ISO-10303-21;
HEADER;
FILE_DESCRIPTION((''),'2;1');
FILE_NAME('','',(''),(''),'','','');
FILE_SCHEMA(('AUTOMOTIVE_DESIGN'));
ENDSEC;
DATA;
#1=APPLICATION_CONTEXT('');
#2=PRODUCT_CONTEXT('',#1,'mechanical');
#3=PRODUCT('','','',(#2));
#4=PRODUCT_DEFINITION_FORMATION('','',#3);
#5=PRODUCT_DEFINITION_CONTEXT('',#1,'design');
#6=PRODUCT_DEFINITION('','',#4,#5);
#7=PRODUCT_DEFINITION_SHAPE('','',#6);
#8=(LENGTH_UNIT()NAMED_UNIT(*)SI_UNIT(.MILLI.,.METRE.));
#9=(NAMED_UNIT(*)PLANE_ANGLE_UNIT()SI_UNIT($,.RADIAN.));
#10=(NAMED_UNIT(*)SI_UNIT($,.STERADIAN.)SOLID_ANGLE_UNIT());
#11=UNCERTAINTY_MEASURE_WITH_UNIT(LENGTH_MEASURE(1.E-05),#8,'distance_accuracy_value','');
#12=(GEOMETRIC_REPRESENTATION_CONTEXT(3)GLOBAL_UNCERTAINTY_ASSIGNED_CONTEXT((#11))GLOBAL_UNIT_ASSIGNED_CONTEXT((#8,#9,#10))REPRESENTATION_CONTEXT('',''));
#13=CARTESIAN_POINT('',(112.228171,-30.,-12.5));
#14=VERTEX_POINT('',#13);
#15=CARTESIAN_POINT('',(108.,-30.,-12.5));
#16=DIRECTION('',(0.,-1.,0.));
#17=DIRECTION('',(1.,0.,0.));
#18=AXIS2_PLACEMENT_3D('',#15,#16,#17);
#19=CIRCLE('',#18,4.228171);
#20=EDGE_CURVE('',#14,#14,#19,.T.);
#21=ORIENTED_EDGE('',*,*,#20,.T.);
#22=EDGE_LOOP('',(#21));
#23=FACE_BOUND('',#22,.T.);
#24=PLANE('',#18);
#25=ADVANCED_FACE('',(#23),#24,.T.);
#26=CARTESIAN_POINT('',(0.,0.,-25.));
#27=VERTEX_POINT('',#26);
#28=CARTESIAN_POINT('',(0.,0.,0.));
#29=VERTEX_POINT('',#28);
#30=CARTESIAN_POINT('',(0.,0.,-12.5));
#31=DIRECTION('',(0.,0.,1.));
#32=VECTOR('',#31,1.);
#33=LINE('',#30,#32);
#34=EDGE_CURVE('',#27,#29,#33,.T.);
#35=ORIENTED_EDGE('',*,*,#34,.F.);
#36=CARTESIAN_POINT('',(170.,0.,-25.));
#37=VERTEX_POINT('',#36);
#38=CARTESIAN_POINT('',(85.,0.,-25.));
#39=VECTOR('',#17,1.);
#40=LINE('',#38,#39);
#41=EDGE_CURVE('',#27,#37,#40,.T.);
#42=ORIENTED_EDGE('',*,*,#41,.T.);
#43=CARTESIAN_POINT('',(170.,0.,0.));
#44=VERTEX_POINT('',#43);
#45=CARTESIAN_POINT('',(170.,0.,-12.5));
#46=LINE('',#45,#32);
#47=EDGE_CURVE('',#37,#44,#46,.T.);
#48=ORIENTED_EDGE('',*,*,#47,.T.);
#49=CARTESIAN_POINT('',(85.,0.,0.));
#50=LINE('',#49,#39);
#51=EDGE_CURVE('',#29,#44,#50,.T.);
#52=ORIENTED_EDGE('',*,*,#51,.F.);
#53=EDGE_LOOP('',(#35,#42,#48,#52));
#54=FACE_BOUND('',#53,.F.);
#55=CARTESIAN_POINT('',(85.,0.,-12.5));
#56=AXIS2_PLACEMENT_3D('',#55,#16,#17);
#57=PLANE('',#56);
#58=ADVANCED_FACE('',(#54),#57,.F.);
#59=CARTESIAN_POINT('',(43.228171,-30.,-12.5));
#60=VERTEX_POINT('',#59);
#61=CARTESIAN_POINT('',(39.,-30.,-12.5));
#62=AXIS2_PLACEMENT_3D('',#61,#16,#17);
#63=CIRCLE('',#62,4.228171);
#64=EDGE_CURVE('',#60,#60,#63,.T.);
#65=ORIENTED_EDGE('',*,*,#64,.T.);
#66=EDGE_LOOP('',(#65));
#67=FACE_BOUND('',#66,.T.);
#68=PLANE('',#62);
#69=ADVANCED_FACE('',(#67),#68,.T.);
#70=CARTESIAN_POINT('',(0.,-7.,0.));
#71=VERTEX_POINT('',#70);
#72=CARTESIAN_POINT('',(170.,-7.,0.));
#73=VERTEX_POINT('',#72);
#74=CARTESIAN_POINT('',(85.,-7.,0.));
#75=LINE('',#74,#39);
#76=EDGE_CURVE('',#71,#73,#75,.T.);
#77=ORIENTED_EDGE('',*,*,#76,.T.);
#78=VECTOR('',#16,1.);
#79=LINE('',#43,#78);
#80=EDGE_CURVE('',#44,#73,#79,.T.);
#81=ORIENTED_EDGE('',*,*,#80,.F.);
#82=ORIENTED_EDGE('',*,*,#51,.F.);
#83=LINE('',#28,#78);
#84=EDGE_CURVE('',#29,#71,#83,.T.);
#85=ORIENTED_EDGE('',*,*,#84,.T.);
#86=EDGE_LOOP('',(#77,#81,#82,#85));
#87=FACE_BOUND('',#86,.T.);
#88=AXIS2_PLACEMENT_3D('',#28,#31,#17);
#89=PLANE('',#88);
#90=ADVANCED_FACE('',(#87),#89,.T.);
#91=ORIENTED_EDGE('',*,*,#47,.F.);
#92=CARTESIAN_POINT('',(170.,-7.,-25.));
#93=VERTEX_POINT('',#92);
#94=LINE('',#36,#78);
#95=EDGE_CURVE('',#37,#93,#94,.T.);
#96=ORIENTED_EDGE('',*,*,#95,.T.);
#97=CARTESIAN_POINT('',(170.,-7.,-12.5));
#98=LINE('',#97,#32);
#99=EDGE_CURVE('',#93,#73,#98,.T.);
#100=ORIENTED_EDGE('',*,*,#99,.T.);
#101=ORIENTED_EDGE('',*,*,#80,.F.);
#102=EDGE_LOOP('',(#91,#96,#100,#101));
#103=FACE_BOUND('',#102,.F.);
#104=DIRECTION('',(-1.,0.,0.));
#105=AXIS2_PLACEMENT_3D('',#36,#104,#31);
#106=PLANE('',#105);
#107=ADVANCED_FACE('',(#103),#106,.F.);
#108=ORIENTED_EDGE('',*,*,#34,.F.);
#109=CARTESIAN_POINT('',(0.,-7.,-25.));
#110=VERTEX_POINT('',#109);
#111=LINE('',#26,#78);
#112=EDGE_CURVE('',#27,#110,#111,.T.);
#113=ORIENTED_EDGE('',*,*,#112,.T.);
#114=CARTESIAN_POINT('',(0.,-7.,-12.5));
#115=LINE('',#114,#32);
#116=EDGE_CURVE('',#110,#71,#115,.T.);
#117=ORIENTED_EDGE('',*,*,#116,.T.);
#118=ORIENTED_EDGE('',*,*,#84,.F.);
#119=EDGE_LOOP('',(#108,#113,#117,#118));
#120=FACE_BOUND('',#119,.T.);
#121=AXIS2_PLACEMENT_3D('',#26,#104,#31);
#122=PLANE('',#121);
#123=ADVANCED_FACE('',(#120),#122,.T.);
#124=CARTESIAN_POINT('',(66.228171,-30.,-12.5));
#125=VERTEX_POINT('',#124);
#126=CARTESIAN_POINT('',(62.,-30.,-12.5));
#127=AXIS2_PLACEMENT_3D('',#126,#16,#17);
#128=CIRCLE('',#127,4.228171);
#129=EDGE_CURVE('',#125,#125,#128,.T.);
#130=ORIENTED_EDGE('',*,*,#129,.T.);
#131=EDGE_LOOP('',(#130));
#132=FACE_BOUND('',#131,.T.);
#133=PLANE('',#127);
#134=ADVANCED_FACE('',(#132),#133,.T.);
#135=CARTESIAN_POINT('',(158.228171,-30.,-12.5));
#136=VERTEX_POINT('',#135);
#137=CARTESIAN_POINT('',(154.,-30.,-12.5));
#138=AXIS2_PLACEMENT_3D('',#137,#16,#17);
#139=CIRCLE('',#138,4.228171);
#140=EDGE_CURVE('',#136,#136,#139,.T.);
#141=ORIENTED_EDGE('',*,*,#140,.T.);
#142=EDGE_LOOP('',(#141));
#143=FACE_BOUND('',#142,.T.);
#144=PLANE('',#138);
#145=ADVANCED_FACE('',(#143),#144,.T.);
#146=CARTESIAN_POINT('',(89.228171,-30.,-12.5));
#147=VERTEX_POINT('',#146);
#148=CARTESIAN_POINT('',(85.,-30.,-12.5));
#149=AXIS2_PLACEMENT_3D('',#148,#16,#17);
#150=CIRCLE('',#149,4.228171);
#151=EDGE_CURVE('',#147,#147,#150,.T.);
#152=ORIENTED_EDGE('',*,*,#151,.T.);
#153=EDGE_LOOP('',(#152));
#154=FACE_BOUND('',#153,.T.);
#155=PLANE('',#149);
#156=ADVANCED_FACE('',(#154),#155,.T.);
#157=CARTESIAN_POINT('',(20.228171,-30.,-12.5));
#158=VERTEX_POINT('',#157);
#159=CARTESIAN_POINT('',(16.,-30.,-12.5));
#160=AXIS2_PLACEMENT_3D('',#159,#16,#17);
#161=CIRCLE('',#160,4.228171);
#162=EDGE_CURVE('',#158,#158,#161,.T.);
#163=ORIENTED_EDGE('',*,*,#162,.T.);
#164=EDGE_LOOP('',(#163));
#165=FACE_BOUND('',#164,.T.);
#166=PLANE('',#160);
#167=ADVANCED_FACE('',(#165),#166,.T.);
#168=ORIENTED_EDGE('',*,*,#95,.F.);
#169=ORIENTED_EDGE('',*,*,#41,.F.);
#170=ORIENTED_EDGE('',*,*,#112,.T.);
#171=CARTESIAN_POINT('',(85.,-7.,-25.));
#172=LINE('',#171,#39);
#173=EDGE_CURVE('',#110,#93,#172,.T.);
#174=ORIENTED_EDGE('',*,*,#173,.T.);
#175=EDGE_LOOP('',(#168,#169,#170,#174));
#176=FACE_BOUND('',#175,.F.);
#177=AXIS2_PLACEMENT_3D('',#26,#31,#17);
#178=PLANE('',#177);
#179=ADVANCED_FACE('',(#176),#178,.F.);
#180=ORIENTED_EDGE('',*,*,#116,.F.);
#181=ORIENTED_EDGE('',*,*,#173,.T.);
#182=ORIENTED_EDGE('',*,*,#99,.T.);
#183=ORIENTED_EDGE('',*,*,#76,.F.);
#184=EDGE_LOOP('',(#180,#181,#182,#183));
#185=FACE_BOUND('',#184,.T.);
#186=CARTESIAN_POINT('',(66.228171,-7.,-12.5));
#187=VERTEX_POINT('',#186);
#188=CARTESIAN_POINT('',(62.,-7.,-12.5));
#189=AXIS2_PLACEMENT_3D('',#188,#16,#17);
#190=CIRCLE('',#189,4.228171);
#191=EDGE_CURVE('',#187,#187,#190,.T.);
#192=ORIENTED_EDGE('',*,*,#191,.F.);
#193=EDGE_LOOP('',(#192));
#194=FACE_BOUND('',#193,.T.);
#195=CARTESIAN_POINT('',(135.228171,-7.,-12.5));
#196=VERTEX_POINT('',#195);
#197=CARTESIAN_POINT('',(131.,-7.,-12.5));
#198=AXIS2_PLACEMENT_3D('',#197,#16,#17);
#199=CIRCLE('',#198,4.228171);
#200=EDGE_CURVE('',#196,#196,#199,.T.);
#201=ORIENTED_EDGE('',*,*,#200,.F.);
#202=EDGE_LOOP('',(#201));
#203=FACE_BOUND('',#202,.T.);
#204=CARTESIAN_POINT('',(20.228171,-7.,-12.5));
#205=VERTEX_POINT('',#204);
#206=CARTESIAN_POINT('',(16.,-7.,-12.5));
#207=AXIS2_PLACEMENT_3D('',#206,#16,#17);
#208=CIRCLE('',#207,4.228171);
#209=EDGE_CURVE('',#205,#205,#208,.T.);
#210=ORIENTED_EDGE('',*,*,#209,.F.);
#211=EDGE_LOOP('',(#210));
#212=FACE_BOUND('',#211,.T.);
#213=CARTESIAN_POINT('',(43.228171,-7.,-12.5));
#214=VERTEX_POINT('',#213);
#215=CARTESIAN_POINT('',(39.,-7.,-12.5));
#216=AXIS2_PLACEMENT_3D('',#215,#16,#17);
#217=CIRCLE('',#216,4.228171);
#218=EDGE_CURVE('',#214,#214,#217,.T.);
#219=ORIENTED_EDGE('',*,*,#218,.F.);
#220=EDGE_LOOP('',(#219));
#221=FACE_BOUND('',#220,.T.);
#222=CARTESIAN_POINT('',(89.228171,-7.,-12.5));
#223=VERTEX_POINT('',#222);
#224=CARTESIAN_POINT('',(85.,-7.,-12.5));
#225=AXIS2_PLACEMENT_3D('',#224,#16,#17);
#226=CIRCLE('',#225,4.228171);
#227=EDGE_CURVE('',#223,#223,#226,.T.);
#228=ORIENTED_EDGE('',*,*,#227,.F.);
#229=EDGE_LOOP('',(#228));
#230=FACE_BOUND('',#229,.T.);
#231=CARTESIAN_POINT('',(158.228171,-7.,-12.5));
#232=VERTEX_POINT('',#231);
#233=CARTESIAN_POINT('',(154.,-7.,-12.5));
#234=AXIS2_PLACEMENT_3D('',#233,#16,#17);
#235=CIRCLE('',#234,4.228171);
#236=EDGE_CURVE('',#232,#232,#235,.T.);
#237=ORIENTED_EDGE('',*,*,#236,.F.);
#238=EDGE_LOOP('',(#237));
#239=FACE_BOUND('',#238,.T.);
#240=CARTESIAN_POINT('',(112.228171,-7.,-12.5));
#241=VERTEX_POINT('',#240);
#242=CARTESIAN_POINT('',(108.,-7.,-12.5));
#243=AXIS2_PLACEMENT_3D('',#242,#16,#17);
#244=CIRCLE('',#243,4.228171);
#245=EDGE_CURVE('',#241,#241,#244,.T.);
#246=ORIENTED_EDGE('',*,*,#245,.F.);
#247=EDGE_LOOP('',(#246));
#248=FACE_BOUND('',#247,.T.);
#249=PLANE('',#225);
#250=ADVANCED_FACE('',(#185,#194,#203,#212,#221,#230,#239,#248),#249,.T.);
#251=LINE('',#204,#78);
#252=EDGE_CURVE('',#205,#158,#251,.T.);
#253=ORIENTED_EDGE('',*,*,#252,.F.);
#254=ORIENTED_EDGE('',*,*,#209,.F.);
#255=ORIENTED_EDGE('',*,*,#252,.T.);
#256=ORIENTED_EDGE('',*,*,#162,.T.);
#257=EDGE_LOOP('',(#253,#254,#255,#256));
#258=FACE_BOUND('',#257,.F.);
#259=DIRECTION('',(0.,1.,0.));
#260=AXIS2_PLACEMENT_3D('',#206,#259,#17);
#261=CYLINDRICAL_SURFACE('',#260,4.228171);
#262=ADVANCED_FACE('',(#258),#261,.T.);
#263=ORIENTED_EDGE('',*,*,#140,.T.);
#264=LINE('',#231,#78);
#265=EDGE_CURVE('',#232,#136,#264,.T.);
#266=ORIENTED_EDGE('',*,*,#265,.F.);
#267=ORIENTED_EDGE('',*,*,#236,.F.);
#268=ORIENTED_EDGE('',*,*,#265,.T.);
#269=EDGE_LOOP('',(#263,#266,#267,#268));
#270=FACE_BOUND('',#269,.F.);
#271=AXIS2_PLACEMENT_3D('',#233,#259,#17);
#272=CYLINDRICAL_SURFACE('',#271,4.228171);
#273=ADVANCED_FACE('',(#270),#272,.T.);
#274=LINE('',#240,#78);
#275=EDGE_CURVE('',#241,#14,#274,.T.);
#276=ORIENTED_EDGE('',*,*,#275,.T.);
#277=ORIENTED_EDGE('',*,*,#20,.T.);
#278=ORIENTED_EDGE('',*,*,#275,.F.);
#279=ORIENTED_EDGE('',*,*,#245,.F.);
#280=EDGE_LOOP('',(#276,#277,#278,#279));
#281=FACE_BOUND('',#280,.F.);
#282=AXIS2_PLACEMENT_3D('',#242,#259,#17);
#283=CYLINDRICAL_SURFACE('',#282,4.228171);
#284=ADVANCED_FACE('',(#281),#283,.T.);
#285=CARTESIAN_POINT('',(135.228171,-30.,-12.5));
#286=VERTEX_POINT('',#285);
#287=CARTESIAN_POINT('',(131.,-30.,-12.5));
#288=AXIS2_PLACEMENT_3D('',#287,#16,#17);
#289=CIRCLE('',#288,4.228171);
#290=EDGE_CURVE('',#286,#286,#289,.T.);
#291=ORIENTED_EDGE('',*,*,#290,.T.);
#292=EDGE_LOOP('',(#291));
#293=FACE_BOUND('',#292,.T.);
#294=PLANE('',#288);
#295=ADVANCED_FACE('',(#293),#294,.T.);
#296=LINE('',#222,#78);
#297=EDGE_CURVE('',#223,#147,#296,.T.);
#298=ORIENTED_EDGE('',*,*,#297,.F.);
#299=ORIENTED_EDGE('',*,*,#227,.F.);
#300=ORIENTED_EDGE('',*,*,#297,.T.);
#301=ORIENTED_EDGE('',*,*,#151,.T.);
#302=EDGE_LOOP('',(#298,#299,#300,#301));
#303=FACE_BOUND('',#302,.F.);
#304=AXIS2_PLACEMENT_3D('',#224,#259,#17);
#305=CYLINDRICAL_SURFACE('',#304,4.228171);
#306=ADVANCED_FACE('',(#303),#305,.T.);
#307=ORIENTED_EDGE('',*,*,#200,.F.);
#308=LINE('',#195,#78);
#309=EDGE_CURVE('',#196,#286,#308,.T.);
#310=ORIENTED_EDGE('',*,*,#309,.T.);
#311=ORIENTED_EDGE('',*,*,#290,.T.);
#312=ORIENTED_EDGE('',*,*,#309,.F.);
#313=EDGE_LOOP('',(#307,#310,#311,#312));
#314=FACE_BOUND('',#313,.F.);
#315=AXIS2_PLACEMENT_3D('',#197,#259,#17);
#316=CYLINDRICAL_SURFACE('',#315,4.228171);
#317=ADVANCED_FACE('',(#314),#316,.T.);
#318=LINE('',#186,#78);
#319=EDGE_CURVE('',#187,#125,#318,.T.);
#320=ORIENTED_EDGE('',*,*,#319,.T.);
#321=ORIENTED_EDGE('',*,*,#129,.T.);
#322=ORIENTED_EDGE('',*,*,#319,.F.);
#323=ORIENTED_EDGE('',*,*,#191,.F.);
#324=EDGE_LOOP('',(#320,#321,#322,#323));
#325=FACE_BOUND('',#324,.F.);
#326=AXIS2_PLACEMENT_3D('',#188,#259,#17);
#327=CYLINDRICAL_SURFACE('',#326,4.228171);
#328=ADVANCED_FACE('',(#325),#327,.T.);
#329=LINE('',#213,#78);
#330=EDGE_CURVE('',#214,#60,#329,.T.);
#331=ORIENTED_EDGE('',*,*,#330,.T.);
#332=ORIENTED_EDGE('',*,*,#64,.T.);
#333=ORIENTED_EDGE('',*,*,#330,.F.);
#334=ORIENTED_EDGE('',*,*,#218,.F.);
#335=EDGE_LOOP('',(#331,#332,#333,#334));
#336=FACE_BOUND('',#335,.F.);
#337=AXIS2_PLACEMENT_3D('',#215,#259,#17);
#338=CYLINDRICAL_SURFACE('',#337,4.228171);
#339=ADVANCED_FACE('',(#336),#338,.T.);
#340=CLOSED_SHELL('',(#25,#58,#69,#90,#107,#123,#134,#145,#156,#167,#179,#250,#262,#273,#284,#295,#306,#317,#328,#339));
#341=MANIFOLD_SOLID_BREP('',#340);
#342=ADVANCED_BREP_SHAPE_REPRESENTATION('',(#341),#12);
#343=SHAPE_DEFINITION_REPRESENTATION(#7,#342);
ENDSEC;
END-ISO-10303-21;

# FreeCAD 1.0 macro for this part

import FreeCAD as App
import Part
import Sketcher
from FreeCAD import Vector

doc = App.newDocument("Part")
body = doc.addObject("PartDesign::Body", "Body")

# Sketch on XZ plane
sketch1 = doc.addObject("Sketcher::SketchObject", "Sketch")
body.addObject(sketch1)
sketch1.AttachmentSupport = (doc.XZ_Plane, [""])
sketch1.MapMode = "FlatFace"
sketch1.addGeometry([
    Part.LineSegment(Vector(0, 0, 0), Vector(0, -25, 0)),
    Part.LineSegment(Vector(0, -25, 0), Vector(170, -25, 0)),
    Part.LineSegment(Vector(170, -25, 0), Vector(170, 0, 0)),
    Part.LineSegment(Vector(170, 0, 0), Vector(0, 0, 0)),
], False)
sketch1.addConstraint([
    Sketcher.Constraint("Coincident", 0, 2, 1, 1),
    Sketcher.Constraint("Coincident", 1, 2, 2, 1),
    Sketcher.Constraint("Coincident", 2, 2, 3, 1),
    Sketcher.Constraint("Coincident", 3, 2, 0, 1),
    Sketcher.Constraint("Vertical", 0),
    Sketcher.Constraint("Horizontal", 1),
    Sketcher.Constraint("Vertical", 2),
    Sketcher.Constraint("Horizontal", 3),
    Sketcher.Constraint("Coincident", 3, 2, -1, 1),
    Sketcher.Constraint("DistanceX", 1, 1, 1, 2, 170.0),
    Sketcher.Constraint("DistanceY", 0, 2, 0, 1, 25.0),
])
pad1 = doc.addObject("PartDesign::Pad", "Pad")
body.addObject(pad1)
pad1.Profile = sketch1
pad1.Length = 7

# Sketch on XZ plane
sketch2 = doc.addObject("Sketcher::SketchObject", "Sketch001")
body.addObject(sketch2)
sketch2.AttachmentSupport = (doc.XZ_Plane, [""])
sketch2.MapMode = "FlatFace"
sketch2.AttachmentOffset = App.Placement(Vector(0, 0, 7), App.Rotation())
sketch2.addGeometry([
    Part.Circle(Vector(85, -12.5, 0), Vector(0, 0, 1), 4.2),  # 0
    Part.Circle(Vector(108, -12.5, 0), Vector(0, 0, 1), 4.2),  # 1
    Part.Circle(Vector(131, -12.5, 0), Vector(0, 0, 1), 4.2),  # 2
    Part.Circle(Vector(154, -12.5, 0), Vector(0, 0, 1), 4.2),  # 3
    Part.Circle(Vector(62, -12.5, 0), Vector(0, 0, 1), 4.2),  # 4
    Part.Circle(Vector(39, -12.5, 0), Vector(0, 0, 1), 4.2),  # 5
    Part.Circle(Vector(16, -12.5, 0), Vector(0, 0, 1), 4.2),  # 6
], False)
sketch2.addConstraint([
    Sketcher.Constraint("Equal", 0, 1),
    Sketcher.Constraint("Equal", 1, 2),
    Sketcher.Constraint("Equal", 2, 3),
    Sketcher.Constraint("Equal", 3, 4),
    Sketcher.Constraint("Equal", 4, 5),
    Sketcher.Constraint("Equal", 5, 6),
    Sketcher.Constraint("Horizontal", 0, 3, 1, 3),
    Sketcher.Constraint("Horizontal", 1, 3, 2, 3),
    Sketcher.Constraint("Horizontal", 2, 3, 3, 3),
    Sketcher.Constraint("Horizontal", 3, 3, 4, 3),
    Sketcher.Constraint("Horizontal", 4, 3, 5, 3),
    Sketcher.Constraint("Horizontal", 5, 3, 6, 3),
    Sketcher.Constraint("DistanceX", -1, 1, 0, 3, 85.0),
    Sketcher.Constraint("DistanceX", -1, 1, 1, 3, 108.0),
    Sketcher.Constraint("DistanceX", -1, 1, 2, 3, 131.0),
    Sketcher.Constraint("DistanceX", -1, 1, 3, 3, 154.0),
    Sketcher.Constraint("DistanceX", -1, 1, 4, 3, 62.0),
    Sketcher.Constraint("DistanceX", -1, 1, 5, 3, 39.0),
    Sketcher.Constraint("DistanceX", -1, 1, 6, 3, 16.0),
    Sketcher.Constraint("DistanceY", 0, 3, -1, 1, 12.5),
    Sketcher.Constraint("Diameter", 0, 8.456342),
])
pad2 = doc.addObject("PartDesign::Pad", "Pad001")
body.addObject(pad2)
pad2.Profile = sketch2
pad2.Length = 23

doc.recompute()
